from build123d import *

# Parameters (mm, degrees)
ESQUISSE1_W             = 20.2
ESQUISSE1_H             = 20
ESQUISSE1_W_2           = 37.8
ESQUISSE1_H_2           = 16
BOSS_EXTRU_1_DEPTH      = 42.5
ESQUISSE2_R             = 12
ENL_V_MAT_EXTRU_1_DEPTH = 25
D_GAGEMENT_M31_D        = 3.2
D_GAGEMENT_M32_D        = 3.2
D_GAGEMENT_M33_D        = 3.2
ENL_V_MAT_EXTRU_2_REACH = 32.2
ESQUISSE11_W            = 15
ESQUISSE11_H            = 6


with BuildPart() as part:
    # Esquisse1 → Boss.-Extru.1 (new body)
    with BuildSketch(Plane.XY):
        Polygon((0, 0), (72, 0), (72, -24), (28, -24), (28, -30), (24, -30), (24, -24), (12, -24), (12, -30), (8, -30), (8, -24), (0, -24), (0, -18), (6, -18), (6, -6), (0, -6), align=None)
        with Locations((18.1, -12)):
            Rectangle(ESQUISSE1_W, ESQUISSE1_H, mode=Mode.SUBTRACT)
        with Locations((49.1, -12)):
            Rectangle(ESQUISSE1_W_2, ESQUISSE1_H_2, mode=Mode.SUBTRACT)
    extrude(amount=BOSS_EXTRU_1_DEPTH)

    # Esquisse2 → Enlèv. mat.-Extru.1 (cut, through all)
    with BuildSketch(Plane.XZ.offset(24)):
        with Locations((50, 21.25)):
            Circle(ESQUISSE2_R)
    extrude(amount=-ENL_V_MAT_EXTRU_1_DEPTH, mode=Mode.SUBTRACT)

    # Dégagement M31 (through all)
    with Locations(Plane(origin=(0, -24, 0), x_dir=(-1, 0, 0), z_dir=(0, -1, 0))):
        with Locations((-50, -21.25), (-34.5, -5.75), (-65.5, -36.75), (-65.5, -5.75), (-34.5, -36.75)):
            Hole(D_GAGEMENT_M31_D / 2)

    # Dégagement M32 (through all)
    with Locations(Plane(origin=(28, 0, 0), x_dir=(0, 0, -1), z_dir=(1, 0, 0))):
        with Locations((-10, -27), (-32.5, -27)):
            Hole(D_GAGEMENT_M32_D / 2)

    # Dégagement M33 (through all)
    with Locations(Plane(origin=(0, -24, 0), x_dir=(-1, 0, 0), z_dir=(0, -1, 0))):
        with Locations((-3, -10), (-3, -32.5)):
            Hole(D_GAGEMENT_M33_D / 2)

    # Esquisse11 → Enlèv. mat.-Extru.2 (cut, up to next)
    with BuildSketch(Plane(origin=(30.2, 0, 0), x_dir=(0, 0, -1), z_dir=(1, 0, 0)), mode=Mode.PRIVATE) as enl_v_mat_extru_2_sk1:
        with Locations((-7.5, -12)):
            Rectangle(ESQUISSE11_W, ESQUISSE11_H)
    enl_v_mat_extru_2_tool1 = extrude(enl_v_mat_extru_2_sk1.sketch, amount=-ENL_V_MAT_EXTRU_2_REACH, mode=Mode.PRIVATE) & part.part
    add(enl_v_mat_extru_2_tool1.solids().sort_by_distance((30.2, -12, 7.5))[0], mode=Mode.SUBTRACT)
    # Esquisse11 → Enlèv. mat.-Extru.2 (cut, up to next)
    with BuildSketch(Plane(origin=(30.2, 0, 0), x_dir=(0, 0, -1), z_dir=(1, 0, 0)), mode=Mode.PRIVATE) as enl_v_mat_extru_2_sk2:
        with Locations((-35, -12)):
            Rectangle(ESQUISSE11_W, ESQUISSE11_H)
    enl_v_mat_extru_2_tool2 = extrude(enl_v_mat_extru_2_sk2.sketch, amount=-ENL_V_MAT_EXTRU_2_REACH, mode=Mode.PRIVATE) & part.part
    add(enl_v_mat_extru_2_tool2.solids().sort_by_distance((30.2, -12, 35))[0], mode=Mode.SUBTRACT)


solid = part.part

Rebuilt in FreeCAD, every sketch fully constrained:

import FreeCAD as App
import Part
import Sketcher
Q = App.Units.Quantity

doc = App.newDocument("Part")
body = doc.addObject("PartDesign::Body", "Body")

sketch1 = body.newObject("Sketcher::SketchObject", "Sketch")
sketch1.AttachmentSupport = (doc.getObject("XY_Plane"), [""])
sketch1.MapMode = "FlatFace"
sketch1.addGeometry([
    Part.LineSegment(App.Vector(72, 0, 0), App.Vector(0, 0, 0)),
    Part.LineSegment(App.Vector(0, 0, 0), App.Vector(0, -6, 0)),
    Part.LineSegment(App.Vector(0, -6, 0), App.Vector(6, -6, 0)),
    Part.LineSegment(App.Vector(6, -6, 0), App.Vector(6, -18, 0)),
    Part.LineSegment(App.Vector(6, -18, 0), App.Vector(0, -18, 0)),
    Part.LineSegment(App.Vector(0, -18, 0), App.Vector(0, -24, 0)),
    Part.LineSegment(App.Vector(0, -24, 0), App.Vector(8, -24, 0)),
    Part.LineSegment(App.Vector(8, -24, 0), App.Vector(8, -30, 0)),
    Part.LineSegment(App.Vector(8, -30, 0), App.Vector(12, -30, 0)),
    Part.LineSegment(App.Vector(12, -30, 0), App.Vector(12, -24, 0)),
    Part.LineSegment(App.Vector(12, -24, 0), App.Vector(24, -24, 0)),
    Part.LineSegment(App.Vector(24, -24, 0), App.Vector(24, -30, 0)),
    Part.LineSegment(App.Vector(24, -30, 0), App.Vector(28, -30, 0)),
    Part.LineSegment(App.Vector(28, -30, 0), App.Vector(28, -24, 0)),
    Part.LineSegment(App.Vector(28, -24, 0), App.Vector(72, -24, 0)),
    Part.LineSegment(App.Vector(72, -24, 0), App.Vector(72, 0, 0)),
    Part.LineSegment(App.Vector(30.2, -20, 0), App.Vector(30.2, -4, 0)),
    Part.LineSegment(App.Vector(30.2, -4, 0), App.Vector(68, -4, 0)),
    Part.LineSegment(App.Vector(68, -4, 0), App.Vector(68, -20, 0)),
    Part.LineSegment(App.Vector(68, -20, 0), App.Vector(30.2, -20, 0)),
    Part.LineSegment(App.Vector(8, -22, 0), App.Vector(8, -2, 0)),
    Part.LineSegment(App.Vector(8, -2, 0), App.Vector(28.2, -2, 0)),
    Part.LineSegment(App.Vector(28.2, -2, 0), App.Vector(28.2, -22, 0)),
    Part.LineSegment(App.Vector(28.2, -22, 0), App.Vector(8, -22, 0)),
], False)
sketch1.addConstraint([
    Sketcher.Constraint("Coincident", 0, 2, 1, 1),
    Sketcher.Constraint("Coincident", 1, 2, 2, 1),
    Sketcher.Constraint("Coincident", 2, 2, 3, 1),
    Sketcher.Constraint("Coincident", 3, 2, 4, 1),
    Sketcher.Constraint("Coincident", 4, 2, 5, 1),
    Sketcher.Constraint("Coincident", 5, 2, 6, 1),
    Sketcher.Constraint("Coincident", 6, 2, 7, 1),
    Sketcher.Constraint("Coincident", 7, 2, 8, 1),
    Sketcher.Constraint("Coincident", 8, 2, 9, 1),
    Sketcher.Constraint("Coincident", 9, 2, 10, 1),
    Sketcher.Constraint("Coincident", 10, 2, 11, 1),
    Sketcher.Constraint("Coincident", 11, 2, 12, 1),
    Sketcher.Constraint("Coincident", 12, 2, 13, 1),
    Sketcher.Constraint("Coincident", 13, 2, 14, 1),
    Sketcher.Constraint("Coincident", 14, 2, 15, 1),
    Sketcher.Constraint("Coincident", 15, 2, 0, 1),
    Sketcher.Constraint("Coincident", 16, 2, 17, 1),
    Sketcher.Constraint("Coincident", 17, 2, 18, 1),
    Sketcher.Constraint("Coincident", 18, 2, 19, 1),
    Sketcher.Constraint("Coincident", 19, 2, 16, 1),
    Sketcher.Constraint("Coincident", 20, 2, 21, 1),
    Sketcher.Constraint("Coincident", 21, 2, 22, 1),
    Sketcher.Constraint("Coincident", 22, 2, 23, 1),
    Sketcher.Constraint("Coincident", 23, 2, 20, 1),
    Sketcher.Constraint("Horizontal", 0),
    Sketcher.Constraint("Vertical", 1),
    Sketcher.Constraint("Horizontal", 2),
    Sketcher.Constraint("Vertical", 3),
    Sketcher.Constraint("Horizontal", 4),
    Sketcher.Constraint("Vertical", 5),
    Sketcher.Constraint("Horizontal", 6),
    Sketcher.Constraint("Vertical", 7),
    Sketcher.Constraint("Horizontal", 8),
    Sketcher.Constraint("Vertical", 9),
    Sketcher.Constraint("Horizontal", 10),
    Sketcher.Constraint("Vertical", 11),
    Sketcher.Constraint("Horizontal", 12),
    Sketcher.Constraint("Vertical", 13),
    Sketcher.Constraint("Horizontal", 14),
    Sketcher.Constraint("Vertical", 15),
    Sketcher.Constraint("Vertical", 16),
    Sketcher.Constraint("Horizontal", 17),
    Sketcher.Constraint("Vertical", 18),
    Sketcher.Constraint("Horizontal", 19),
    Sketcher.Constraint("Vertical", 20),
    Sketcher.Constraint("Horizontal", 21),
    Sketcher.Constraint("Vertical", 22),
    Sketcher.Constraint("Horizontal", 23),
    Sketcher.Constraint("Coincident", 0, 2, -1, 1),
    Sketcher.Constraint("PointOnObject", 4, 2, -2),
    Sketcher.Constraint("Horizontal", 6, 2, 9, 2),
    Sketcher.Constraint("Horizontal", 8, 2, 11, 2),
    Sketcher.Constraint("Horizontal", 10, 2, 13, 2),
    Sketcher.Constraint("Vertical", 7, 2, 20, 2),
    Sketcher.Constraint("Equal", 8, 12),
    Sketcher.Constraint("Equal", 4, 1),
    Sketcher.Constraint("Equal", 10, 3),
    Sketcher.Constraint("Equal", 1, 5),
    Sketcher.Constraint("Equal", 5, 7),
    Sketcher.Constraint("DistanceX", 0, 2, 0, 1, Q("72 mm")),
    Sketcher.Constraint("DistanceX", 2, 1, 2, 2, Q("6 mm")),
    Sketcher.Constraint("DistanceX", 6, 1, 6, 2, Q("8 mm")),
    Sketcher.Constraint("DistanceX", 8, 1, 8, 2, Q("4 mm")),
    Sketcher.Constraint("DistanceX", 10, 1, 10, 2, Q("12 mm")),
    Sketcher.Constraint("DistanceY", 16, 1, 16, 2, Q("16 mm")),
    Sketcher.Constraint("DistanceY", 20, 1, 20, 2, Q("20 mm")),
    Sketcher.Constraint("DistanceX", 17, 1, 17, 2, Q("37.8 mm")),
    Sketcher.Constraint("DistanceX", 21, 1, 21, 2, Q("20.2 mm")),
    Sketcher.Constraint("DistanceY", 16, 2, -1, 1, Q("4 mm")),
    Sketcher.Constraint("DistanceX", -1, 1, 17, 2, Q("68 mm")),
    Sketcher.Constraint("DistanceY", 20, 2, -1, 1, Q("2 mm")),
])
pad1 = body.newObject("PartDesign::Pad", "Pad")
pad1.Profile = sketch1
pad1.Length = 42.5

sketch2 = body.newObject("Sketcher::SketchObject", "Sketch001")
sketch2.AttachmentSupport = (doc.getObject("XZ_Plane"), [""])
sketch2.MapMode = "FlatFace"
sketch2.AttachmentOffset = App.Placement(App.Vector(0, 0, 24), App.Rotation())
sketch2.addGeometry(Part.Circle(App.Vector(50, 21.25, 0), App.Vector(0, 0, 1), 12), False)
sketch2.addConstraint([
    Sketcher.Constraint("Diameter", 0, Q("24 mm")),
    Sketcher.Constraint("DistanceX", -1, 1, 0, 3, Q("50 mm")),
    Sketcher.Constraint("DistanceY", -1, 1, 0, 3, Q("21.25 mm")),
])
pocket1 = body.newObject("PartDesign::Pocket", "Pocket")
pocket1.Profile = sketch2
pocket1.Type = "ThroughAll"

sketch3 = body.newObject("Sketcher::SketchObject", "Sketch002")
sketch3.AttachmentSupport = (doc.getObject("XZ_Plane"), [""])
sketch3.MapMode = "FlatFace"
sketch3.AttachmentOffset = App.Placement(App.Vector(0, 0, 24), App.Rotation())
sketch3.addGeometry([
    Part.Circle(App.Vector(50, 21.25, 0), App.Vector(0, 0, 1), 1.6),
    Part.Circle(App.Vector(34.5, 5.75, 0), App.Vector(0, 0, 1), 1.6),
    Part.Circle(App.Vector(65.5, 36.75, 0), App.Vector(0, 0, 1), 1.6),
    Part.Circle(App.Vector(65.5, 5.75, 0), App.Vector(0, 0, 1), 1.6),
    Part.Circle(App.Vector(34.5, 36.75, 0), App.Vector(0, 0, 1), 1.6),
], False)
sketch3.addConstraint([
    Sketcher.Constraint("Equal", 0, 1),
    Sketcher.Constraint("Equal", 1, 2),
    Sketcher.Constraint("Equal", 2, 3),
    Sketcher.Constraint("Equal", 3, 4),
    Sketcher.Constraint("Horizontal", 1, 3, 3, 3),
    Sketcher.Constraint("Horizontal", 2, 3, 4, 3),
    Sketcher.Constraint("Vertical", 2, 3, 3, 3),
    Sketcher.Constraint("Vertical", 1, 3, 4, 3),
    Sketcher.Constraint("Diameter", 0, Q("3.2 mm")),
    Sketcher.Constraint("DistanceX", -1, 1, 0, 3, Q("50 mm")),
    Sketcher.Constraint("DistanceX", 1, 3, 2, 3, Q("31 mm")),
    Sketcher.Constraint("DistanceY", 1, 3, 2, 3, Q("31 mm")),
    Sketcher.Constraint("DistanceX", -1, 1, 1, 3, Q("34.5 mm")),
    Sketcher.Constraint("DistanceY", 1, 3, 0, 3, Q("15.5 mm")),
    Sketcher.Constraint("DistanceY", -1, 1, 0, 3, Q("21.25 mm")),
])
doc.recompute()
hole = body.newObject("PartDesign::Hole", "Hole")
hole.Profile = sketch3
hole.ThreadType = "None"
hole.Diameter = 3.2
hole.DepthType = "ThroughAll"

sketch4 = body.newObject("Sketcher::SketchObject", "Sketch003")
sketch4.AttachmentSupport = (doc.getObject("YZ_Plane"), [""])
sketch4.MapMode = "FlatFace"
sketch4.AttachmentOffset = App.Placement(App.Vector(0, 0, 28), App.Rotation())
sketch4.addGeometry([
    Part.Circle(App.Vector(-27, 10, 0), App.Vector(0, 0, 1), 1.6),
    Part.Circle(App.Vector(-27, 32.5, 0), App.Vector(0, 0, 1), 1.6),
], False)
sketch4.addConstraint([
    Sketcher.Constraint("Equal", 0, 1),
    Sketcher.Constraint("Vertical", 0, 3, 1, 3),
    Sketcher.Constraint("Diameter", 0, Q("3.2 mm")),
    Sketcher.Constraint("DistanceX", 0, 3, -1, 1, Q("27 mm")),
    Sketcher.Constraint("DistanceY", -1, 1, 0, 3, Q("10 mm")),
    Sketcher.Constraint("DistanceY", -1, 1, 1, 3, Q("32.5 mm")),
])
doc.recompute()
hole2 = body.newObject("PartDesign::Hole", "Hole001")
hole2.Profile = sketch4
hole2.ThreadType = "None"
hole2.Diameter = 3.2
hole2.DepthType = "ThroughAll"

sketch5 = body.newObject("Sketcher::SketchObject", "Sketch004")
sketch5.AttachmentSupport = (doc.getObject("XZ_Plane"), [""])
sketch5.MapMode = "FlatFace"
sketch5.AttachmentOffset = App.Placement(App.Vector(0, 0, 24), App.Rotation())
sketch5.addGeometry([
    Part.Circle(App.Vector(3, 10, 0), App.Vector(0, 0, 1), 1.6),
    Part.Circle(App.Vector(3, 32.5, 0), App.Vector(0, 0, 1), 1.6),
], False)
sketch5.addConstraint([
    Sketcher.Constraint("Equal", 0, 1),
    Sketcher.Constraint("Vertical", 0, 3, 1, 3),
    Sketcher.Constraint("Diameter", 0, Q("3.2 mm")),
    Sketcher.Constraint("DistanceX", -1, 1, 0, 3, Q("3 mm")),
    Sketcher.Constraint("DistanceY", -1, 1, 0, 3, Q("10 mm")),
    Sketcher.Constraint("DistanceY", -1, 1, 1, 3, Q("32.5 mm")),
])
doc.recompute()
hole3 = body.newObject("PartDesign::Hole", "Hole002")
hole3.Profile = sketch5
hole3.ThreadType = "None"
hole3.Diameter = 3.2
hole3.DepthType = "ThroughAll"

sketch6 = body.newObject("Sketcher::SketchObject", "Sketch005")
sketch6.AttachmentSupport = (doc.getObject("YZ_Plane"), [""])
sketch6.MapMode = "FlatFace"
sketch6.AttachmentOffset = App.Placement(App.Vector(0, 0, 30.2), App.Rotation())
sketch6.addGeometry([
    Part.LineSegment(App.Vector(-9, 15, 0), App.Vector(-15, 15, 0)),
    Part.LineSegment(App.Vector(-15, 15, 0), App.Vector(-15, 0, 0)),
    Part.LineSegment(App.Vector(-15, 0, 0), App.Vector(-9, 0, 0)),
    Part.LineSegment(App.Vector(-9, 0, 0), App.Vector(-9, 15, 0)),
], False)
sketch6.addConstraint([
    Sketcher.Constraint("Coincident", 0, 2, 1, 1),
    Sketcher.Constraint("Coincident", 1, 2, 2, 1),
    Sketcher.Constraint("Coincident", 2, 2, 3, 1),
    Sketcher.Constraint("Coincident", 3, 2, 0, 1),
    Sketcher.Constraint("Horizontal", 0),
    Sketcher.Constraint("Vertical", 1),
    Sketcher.Constraint("Horizontal", 2),
    Sketcher.Constraint("Vertical", 3),
    Sketcher.Constraint("PointOnObject", 1, 2, -1),
    Sketcher.Constraint("DistanceX", 0, 2, 0, 1, Q("6 mm")),
    Sketcher.Constraint("DistanceY", 1, 2, 1, 1, Q("15 mm")),
    Sketcher.Constraint("DistanceX", 0, 2, -1, 1, Q("15 mm")),
])
pocket2 = body.newObject("PartDesign::Pocket", "Pocket001")
pocket2.Profile = sketch6
pocket2.Type = "UpToFirst"

sketch7 = body.newObject("Sketcher::SketchObject", "Sketch006")
sketch7.AttachmentSupport = (doc.getObject("YZ_Plane"), [""])
sketch7.MapMode = "FlatFace"
sketch7.AttachmentOffset = App.Placement(App.Vector(0, 0, 30.2), App.Rotation())
sketch7.addGeometry([
    Part.LineSegment(App.Vector(-9, 42.5, 0), App.Vector(-15, 42.5, 0)),
    Part.LineSegment(App.Vector(-15, 42.5, 0), App.Vector(-15, 27.5, 0)),
    Part.LineSegment(App.Vector(-15, 27.5, 0), App.Vector(-9, 27.5, 0)),
    Part.LineSegment(App.Vector(-9, 27.5, 0), App.Vector(-9, 42.5, 0)),
], False)
sketch7.addConstraint([
    Sketcher.Constraint("Coincident", 0, 2, 1, 1),
    Sketcher.Constraint("Coincident", 1, 2, 2, 1),
    Sketcher.Constraint("Coincident", 2, 2, 3, 1),
    Sketcher.Constraint("Coincident", 3, 2, 0, 1),
    Sketcher.Constraint("Horizontal", 0),
    Sketcher.Constraint("Vertical", 1),
    Sketcher.Constraint("Horizontal", 2),
    Sketcher.Constraint("Vertical", 3),
    Sketcher.Constraint("DistanceX", 0, 2, 0, 1, Q("6 mm")),
    Sketcher.Constraint("DistanceY", 1, 2, 1, 1, Q("15 mm")),
    Sketcher.Constraint("DistanceX", 0, 2, -1, 1, Q("15 mm")),
    Sketcher.Constraint("DistanceY", -1, 1, 0, 2, Q("42.5 mm")),
])
pocket3 = body.newObject("PartDesign::Pocket", "Pocket002")
pocket3.Profile = sketch7
pocket3.Type = "UpToFirst"

doc.recompute()
